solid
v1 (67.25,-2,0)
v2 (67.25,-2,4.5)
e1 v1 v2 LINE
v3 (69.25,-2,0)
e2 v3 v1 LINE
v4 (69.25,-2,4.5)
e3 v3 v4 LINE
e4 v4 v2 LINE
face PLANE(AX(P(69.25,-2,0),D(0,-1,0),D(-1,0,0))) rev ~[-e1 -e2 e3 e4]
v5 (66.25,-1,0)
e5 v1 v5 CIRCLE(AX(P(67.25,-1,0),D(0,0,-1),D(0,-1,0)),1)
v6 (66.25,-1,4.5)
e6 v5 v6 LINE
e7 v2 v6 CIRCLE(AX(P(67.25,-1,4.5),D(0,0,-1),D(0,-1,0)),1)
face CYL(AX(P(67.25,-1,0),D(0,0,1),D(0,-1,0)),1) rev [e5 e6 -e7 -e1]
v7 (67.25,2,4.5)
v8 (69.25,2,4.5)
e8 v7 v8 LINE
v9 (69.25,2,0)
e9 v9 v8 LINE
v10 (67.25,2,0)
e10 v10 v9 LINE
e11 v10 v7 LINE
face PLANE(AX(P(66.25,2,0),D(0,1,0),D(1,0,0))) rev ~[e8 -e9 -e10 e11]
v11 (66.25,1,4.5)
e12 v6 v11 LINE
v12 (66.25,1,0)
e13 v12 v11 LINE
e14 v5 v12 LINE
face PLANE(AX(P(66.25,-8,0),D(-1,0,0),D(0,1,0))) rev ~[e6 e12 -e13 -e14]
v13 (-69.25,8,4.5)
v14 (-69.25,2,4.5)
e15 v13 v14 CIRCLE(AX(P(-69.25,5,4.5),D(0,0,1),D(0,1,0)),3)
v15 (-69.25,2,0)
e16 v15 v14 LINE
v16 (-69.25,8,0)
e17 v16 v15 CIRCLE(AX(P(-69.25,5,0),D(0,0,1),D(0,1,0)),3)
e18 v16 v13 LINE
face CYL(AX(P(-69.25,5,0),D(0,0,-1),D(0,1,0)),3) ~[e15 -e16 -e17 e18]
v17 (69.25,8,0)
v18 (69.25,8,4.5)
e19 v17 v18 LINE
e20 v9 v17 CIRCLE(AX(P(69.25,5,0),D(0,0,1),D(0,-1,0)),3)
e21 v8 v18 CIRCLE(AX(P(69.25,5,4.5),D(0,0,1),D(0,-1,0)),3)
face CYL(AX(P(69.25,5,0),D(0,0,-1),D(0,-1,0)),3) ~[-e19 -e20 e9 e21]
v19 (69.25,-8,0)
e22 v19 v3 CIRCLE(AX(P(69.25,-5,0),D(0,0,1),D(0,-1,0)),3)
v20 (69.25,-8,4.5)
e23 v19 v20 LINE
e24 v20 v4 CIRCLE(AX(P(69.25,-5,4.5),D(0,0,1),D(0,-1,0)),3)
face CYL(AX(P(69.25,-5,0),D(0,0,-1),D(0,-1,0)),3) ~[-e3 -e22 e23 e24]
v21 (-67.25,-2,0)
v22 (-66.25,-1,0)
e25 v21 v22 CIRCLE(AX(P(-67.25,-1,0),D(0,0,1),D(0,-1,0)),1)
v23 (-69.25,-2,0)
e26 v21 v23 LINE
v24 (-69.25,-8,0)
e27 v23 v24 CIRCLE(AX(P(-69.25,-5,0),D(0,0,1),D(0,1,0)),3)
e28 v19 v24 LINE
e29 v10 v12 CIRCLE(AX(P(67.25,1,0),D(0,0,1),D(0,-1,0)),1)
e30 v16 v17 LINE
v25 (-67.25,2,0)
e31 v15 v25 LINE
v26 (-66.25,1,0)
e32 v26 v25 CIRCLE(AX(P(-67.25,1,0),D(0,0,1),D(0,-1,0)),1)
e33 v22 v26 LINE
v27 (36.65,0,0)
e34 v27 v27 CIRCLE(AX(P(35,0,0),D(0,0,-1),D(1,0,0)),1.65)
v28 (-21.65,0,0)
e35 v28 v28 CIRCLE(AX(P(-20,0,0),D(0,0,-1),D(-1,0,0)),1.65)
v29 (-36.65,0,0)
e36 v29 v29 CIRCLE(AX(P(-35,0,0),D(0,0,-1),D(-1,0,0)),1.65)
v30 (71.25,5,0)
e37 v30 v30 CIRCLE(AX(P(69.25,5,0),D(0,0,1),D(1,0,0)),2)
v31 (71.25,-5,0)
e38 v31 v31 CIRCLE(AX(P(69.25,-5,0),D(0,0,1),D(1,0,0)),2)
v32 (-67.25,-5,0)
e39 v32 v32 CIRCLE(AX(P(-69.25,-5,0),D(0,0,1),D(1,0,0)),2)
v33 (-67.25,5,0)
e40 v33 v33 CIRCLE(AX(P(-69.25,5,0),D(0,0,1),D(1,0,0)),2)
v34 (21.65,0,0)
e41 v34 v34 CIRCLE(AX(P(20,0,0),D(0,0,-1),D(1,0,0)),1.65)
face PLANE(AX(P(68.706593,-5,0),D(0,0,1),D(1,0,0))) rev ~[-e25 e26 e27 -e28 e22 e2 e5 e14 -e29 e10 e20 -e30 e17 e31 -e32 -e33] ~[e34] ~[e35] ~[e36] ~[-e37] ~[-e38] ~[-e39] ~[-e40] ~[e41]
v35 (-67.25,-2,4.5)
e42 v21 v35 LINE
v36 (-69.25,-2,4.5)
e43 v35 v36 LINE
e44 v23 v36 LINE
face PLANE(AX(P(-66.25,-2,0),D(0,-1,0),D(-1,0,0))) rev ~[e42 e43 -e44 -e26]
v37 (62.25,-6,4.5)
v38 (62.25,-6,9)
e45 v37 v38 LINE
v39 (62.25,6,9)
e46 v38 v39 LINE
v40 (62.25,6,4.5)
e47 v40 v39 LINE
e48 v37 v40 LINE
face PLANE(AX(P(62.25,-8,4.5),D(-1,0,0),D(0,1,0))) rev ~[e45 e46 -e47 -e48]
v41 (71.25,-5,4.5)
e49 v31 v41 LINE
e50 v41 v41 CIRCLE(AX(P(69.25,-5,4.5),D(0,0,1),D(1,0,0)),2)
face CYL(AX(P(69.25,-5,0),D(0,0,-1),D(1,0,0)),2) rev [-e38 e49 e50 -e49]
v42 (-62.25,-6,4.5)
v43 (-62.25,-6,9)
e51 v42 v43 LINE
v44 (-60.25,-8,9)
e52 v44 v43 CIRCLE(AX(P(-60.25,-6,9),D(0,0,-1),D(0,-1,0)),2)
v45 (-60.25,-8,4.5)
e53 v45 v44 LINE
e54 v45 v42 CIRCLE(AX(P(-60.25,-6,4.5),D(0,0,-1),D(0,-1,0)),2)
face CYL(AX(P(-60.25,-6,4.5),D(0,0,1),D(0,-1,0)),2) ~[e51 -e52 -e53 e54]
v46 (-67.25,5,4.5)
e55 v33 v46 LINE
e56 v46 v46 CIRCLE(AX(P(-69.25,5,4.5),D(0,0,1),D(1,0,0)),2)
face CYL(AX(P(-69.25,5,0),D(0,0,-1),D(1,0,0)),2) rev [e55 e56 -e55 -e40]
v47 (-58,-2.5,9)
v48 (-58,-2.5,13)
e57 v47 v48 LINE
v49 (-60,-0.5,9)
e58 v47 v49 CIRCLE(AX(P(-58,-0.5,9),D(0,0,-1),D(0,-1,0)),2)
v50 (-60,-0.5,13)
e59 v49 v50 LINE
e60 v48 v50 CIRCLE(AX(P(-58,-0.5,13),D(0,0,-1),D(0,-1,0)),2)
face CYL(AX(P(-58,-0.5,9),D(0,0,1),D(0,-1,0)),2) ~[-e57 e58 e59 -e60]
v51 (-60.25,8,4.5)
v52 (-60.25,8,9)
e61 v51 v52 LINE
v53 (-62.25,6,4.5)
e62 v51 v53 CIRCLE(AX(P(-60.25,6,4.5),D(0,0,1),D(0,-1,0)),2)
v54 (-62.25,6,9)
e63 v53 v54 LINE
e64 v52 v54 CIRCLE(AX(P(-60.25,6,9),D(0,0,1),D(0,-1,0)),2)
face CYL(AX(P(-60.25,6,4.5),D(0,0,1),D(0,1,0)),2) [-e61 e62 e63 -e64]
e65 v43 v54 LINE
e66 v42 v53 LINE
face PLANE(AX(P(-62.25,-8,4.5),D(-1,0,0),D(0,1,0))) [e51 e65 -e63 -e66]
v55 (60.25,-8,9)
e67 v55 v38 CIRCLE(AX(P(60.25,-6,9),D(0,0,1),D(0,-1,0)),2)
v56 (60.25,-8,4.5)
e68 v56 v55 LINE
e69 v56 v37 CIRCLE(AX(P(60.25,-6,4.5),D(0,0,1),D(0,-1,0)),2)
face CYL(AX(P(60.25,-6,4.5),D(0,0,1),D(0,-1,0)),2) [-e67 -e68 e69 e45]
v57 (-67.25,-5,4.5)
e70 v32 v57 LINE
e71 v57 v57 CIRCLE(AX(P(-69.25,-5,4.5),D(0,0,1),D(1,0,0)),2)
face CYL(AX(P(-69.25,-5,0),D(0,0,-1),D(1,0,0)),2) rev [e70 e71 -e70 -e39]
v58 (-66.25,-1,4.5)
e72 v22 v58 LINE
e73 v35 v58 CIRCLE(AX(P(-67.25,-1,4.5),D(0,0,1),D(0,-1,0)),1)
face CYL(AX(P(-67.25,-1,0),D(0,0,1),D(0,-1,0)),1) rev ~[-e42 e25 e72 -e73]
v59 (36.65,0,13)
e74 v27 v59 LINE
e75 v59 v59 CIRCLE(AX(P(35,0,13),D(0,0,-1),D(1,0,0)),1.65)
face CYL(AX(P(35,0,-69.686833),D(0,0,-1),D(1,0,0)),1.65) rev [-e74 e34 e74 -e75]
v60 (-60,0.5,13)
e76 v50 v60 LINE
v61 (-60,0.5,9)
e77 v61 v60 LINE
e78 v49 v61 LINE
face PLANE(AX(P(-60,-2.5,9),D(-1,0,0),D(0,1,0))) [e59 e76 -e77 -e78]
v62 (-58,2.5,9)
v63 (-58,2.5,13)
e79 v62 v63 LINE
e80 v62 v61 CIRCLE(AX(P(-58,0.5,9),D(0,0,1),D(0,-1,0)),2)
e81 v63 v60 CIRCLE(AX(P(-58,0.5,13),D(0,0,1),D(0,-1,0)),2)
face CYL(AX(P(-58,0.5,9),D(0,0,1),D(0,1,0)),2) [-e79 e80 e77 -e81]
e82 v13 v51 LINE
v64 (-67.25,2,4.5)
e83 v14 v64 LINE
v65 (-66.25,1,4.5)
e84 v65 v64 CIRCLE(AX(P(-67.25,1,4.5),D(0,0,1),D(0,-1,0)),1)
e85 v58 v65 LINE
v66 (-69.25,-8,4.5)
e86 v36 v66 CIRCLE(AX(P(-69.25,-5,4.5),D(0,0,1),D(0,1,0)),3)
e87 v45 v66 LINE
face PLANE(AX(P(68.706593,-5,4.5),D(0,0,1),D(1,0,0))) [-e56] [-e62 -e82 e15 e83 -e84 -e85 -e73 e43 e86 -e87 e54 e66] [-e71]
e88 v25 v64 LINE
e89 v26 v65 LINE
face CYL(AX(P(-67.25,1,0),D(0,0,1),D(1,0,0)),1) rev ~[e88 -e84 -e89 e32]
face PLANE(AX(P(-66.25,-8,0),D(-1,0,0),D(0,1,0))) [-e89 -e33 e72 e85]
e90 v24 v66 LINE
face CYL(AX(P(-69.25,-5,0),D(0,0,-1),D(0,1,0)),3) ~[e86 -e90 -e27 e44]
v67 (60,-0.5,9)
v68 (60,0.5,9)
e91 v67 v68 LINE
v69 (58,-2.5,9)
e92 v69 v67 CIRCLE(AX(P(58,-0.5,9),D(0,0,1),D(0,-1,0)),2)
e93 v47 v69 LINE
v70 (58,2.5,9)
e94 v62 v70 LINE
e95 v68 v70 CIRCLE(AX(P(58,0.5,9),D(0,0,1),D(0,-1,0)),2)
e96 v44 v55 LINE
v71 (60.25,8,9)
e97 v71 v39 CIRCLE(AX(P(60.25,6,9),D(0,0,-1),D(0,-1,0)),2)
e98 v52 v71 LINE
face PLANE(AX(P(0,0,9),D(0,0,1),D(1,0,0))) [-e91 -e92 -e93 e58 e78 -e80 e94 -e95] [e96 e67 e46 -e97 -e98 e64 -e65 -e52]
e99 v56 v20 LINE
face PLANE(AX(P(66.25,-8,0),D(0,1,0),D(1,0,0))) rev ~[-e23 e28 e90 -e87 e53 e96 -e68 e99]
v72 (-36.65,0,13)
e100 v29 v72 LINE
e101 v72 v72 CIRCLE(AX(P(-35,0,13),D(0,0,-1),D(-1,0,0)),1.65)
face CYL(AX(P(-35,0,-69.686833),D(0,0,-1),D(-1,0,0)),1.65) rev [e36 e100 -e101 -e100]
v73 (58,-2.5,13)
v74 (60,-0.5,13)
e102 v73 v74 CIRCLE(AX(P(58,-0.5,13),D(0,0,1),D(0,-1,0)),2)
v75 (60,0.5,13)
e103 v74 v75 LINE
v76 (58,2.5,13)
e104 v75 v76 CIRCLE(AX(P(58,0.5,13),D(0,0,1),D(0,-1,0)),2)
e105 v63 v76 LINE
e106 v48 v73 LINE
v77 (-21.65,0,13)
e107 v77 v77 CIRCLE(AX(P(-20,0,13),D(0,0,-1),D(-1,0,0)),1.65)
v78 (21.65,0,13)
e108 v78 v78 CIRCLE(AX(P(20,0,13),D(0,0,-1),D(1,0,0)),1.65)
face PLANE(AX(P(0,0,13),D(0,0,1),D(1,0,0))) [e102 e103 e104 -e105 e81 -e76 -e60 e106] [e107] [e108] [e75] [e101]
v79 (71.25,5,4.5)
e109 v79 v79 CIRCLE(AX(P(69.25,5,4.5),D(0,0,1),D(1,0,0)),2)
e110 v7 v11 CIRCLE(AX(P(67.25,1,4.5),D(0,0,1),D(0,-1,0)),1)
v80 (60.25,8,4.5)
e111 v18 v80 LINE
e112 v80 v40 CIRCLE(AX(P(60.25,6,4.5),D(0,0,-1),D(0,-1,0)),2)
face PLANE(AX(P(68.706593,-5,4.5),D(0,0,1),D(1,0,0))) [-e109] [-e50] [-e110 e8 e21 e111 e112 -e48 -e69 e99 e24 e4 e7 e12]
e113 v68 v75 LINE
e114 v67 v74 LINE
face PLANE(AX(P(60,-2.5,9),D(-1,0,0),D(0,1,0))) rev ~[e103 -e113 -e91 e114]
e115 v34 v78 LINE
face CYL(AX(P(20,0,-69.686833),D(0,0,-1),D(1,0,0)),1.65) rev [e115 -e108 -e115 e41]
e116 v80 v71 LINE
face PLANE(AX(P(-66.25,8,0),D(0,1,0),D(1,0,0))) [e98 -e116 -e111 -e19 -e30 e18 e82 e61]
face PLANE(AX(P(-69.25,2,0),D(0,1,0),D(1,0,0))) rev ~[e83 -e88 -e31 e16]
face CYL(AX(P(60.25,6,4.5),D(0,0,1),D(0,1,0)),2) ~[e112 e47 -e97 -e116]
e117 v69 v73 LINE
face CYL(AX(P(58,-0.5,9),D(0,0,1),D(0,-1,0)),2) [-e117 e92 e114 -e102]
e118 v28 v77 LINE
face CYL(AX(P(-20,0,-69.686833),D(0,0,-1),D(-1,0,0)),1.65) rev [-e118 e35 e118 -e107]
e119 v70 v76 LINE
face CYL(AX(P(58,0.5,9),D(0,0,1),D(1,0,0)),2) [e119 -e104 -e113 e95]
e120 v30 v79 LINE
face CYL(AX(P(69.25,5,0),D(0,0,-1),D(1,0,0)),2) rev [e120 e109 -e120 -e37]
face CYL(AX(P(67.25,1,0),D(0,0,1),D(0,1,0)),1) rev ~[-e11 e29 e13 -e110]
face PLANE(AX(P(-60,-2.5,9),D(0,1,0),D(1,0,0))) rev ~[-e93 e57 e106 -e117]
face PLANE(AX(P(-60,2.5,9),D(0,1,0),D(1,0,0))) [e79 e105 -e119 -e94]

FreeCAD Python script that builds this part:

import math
import FreeCAD as App
import Part
import Sketcher
from FreeCAD import Vector
Q = App.Units.Quantity


def edges_at(feature, points):
    """Names of the edges that pass closest to the given points."""
    edges = feature.Shape.Edges
    near = lambda p: min(range(len(edges)), key=lambda i: edges[i].distToShape(Part.Vertex(*p))[0])
    return sorted({f"Edge{near(p) + 1}" for p in points})

doc = App.newDocument("Part")
params = doc.addObject("Spreadsheet::Sheet", "Params")
for row, (alias, value) in enumerate([
    ("sketch1_diameter", "4 mm"),
    ("sketch1_radius", "3 mm"),
    ("sketch1_width", "3 mm"),
    ("sketch1_height", "4 mm"),
    ("sketch1_width2", "138.5 mm"),
    ("pad1_length", "4.5 mm"),
    ("fillet_radius", "1 mm"),
    ("sketch2_height", "16 mm"),
    ("sketch2_width", "124.5 mm"),
    ("pad2_length", "4.5 mm"),
    ("sketch3_width", "120 mm"),
    ("sketch3_height", "5 mm"),
    ("pad3_length", "4 mm"),
    ("sketch4_diameter", "3.3 mm"),
    ("fillet2_radius", "2 mm"),
], start=1):
    params.set(f"A{row}", alias)
    params.set(f"B{row}", "=" + value)
    params.setAlias(f"B{row}", alias)

body = doc.addObject("PartDesign::Body", "Body")

sketch1 = body.newObject("Sketcher::SketchObject", "Sketch")
sketch1.AttachmentSupport = (doc.getObject("XY_Plane"), [""])
sketch1.MapMode = "FlatFace"
sketch1.addGeometry([
    Part.LineSegment(Vector(-66.2, 2, 0), Vector(-66.2, -2, 0)),
    Part.LineSegment(Vector(-66.2, -2, 0), Vector(-69.2, -2, 0)),
    Part.ArcOfCircle(Part.Circle(Vector(-69.2, -5, 0), Vector(0, 0, 1), 3), math.radians(90), math.radians(270)),
    Part.LineSegment(Vector(-69.2, -8, 0), Vector(69.2, -8, 0)),
    Part.ArcOfCircle(Part.Circle(Vector(69.2, -5, 0), Vector(0, 0, 1), 3), math.radians(-90), math.radians(90)),
    Part.LineSegment(Vector(69.2, -2, 0), Vector(66.2, -2, 0)),
    Part.LineSegment(Vector(66.2, -2, 0), Vector(66.2, 2, 0)),
    Part.LineSegment(Vector(66.2, 2, 0), Vector(69.2, 2, 0)),
    Part.ArcOfCircle(Part.Circle(Vector(69.2, 5, 0), Vector(0, 0, 1), 3), math.radians(-90), math.radians(90)),
    Part.LineSegment(Vector(69.2, 8, 0), Vector(-69.2, 8, 0)),
    Part.ArcOfCircle(Part.Circle(Vector(-69.2, 5, 0), Vector(0, 0, 1), 3), math.radians(90), math.radians(270)),
    Part.LineSegment(Vector(-69.2, 2, 0), Vector(-66.2, 2, 0)),
    Part.Circle(Vector(-69.2, -5, 0), Vector(0, 0, 1), 2),
    Part.Circle(Vector(-69.2, 5, 0), Vector(0, 0, 1), 2),
    Part.Circle(Vector(69.2, -5, 0), Vector(0, 0, 1), 2),
    Part.Circle(Vector(69.2, 5, 0), Vector(0, 0, 1), 2),
], False)
sketch1.addConstraint([
    Sketcher.Constraint("Coincident", 0, 2, 1, 1),
    Sketcher.Constraint("Tangent", 1, 2, 2, 1),
    Sketcher.Constraint("Tangent", 2, 2, 3, 1),
    Sketcher.Constraint("Tangent", 3, 2, 4, 1),
    Sketcher.Constraint("Tangent", 4, 2, 5, 1),
    Sketcher.Constraint("Coincident", 5, 2, 6, 1),
    Sketcher.Constraint("Coincident", 6, 2, 7, 1),
    Sketcher.Constraint("Tangent", 7, 2, 8, 1),
    Sketcher.Constraint("Tangent", 8, 2, 9, 1),
    Sketcher.Constraint("Tangent", 9, 2, 10, 1),
    Sketcher.Constraint("Tangent", 10, 2, 11, 1),
    Sketcher.Constraint("Coincident", 11, 2, 0, 1),
    Sketcher.Constraint("Vertical", 0),
    Sketcher.Constraint("Horizontal", 1),
    Sketcher.Constraint("Horizontal", 3),
    Sketcher.Constraint("Horizontal", 5),
    Sketcher.Constraint("Vertical", 6),
    Sketcher.Constraint("Horizontal", 7),
    Sketcher.Constraint("Horizontal", 9),
    Sketcher.Constraint("Horizontal", 11),
    Sketcher.Constraint("Coincident", 12, 3, 2, 3),
    Sketcher.Constraint("Coincident", 13, 3, 10, 3),
    Sketcher.Constraint("Coincident", 14, 3, 4, 3),
    Sketcher.Constraint("Coincident", 15, 3, 8, 3),
    Sketcher.Constraint("Equal", 2, 4),
    Sketcher.Constraint("Equal", 4, 8),
    Sketcher.Constraint("Equal", 8, 10),
    Sketcher.Constraint("Equal", 12, 13),
    Sketcher.Constraint("Equal", 13, 14),
    Sketcher.Constraint("Equal", 14, 15),
    Sketcher.Constraint("Symmetric", 2, 3, 8, 3, -1, 1),
    Sketcher.Constraint("Vertical", 4, 3, 8, 3),
    Sketcher.Constraint("Vertical", 2, 3, 10, 3),
    Sketcher.Constraint("Equal", 1, 5),
    Sketcher.Constraint("Diameter", 12, Q("4 mm")),
    Sketcher.Constraint("Radius", 2, Q("3 mm")),
    Sketcher.Constraint("DistanceX", 1, 2, 1, 1, Q("3 mm")),
    Sketcher.Constraint("DistanceY", 0, 2, 0, 1, Q("4 mm")),
    Sketcher.Constraint("DistanceX", 3, 1, 3, 2, Q("138.5 mm")),
])
sketch1.setExpression("Constraints[34]", "Params.sketch1_diameter")
sketch1.setExpression("Constraints[35]", "Params.sketch1_radius")
sketch1.setExpression("Constraints[36]", "Params.sketch1_width")
sketch1.setExpression("Constraints[37]", "Params.sketch1_height")
sketch1.setExpression("Constraints[38]", "Params.sketch1_width2")
pad1 = body.newObject("PartDesign::Pad", "Pad")
pad1.Profile = sketch1
pad1.setExpression("Length", "Params.pad1_length")
doc.recompute()

fillet = body.newObject("PartDesign::Fillet", "Fillet")
fillet.Base = (pad1, edges_at(pad1, [
    (-66.25, -2, 2.25),
    (-66.25, 2, 2.25),
    (66.25, 2, 2.25),
    (66.25, -2, 2.25),
]))
fillet.setExpression("Radius", "Params.fillet_radius")

sketch2 = body.newObject("Sketcher::SketchObject", "Sketch001")
sketch2.AttachmentSupport = (doc.getObject("XY_Plane"), [""])
sketch2.MapMode = "FlatFace"
sketch2.AttachmentOffset = App.Placement(Vector(0, 0, 4.5), App.Rotation())
sketch2.addGeometry([
    Part.LineSegment(Vector(-62, 8, 0), Vector(-62, -8, 0)),
    Part.LineSegment(Vector(-62, -8, 0), Vector(62, -8, 0)),
    Part.LineSegment(Vector(62, -8, 0), Vector(62, 8, 0)),
    Part.LineSegment(Vector(62, 8, 0), Vector(-62, 8, 0)),
], False)
sketch2.addConstraint([
    Sketcher.Constraint("Coincident", 0, 2, 1, 1),
    Sketcher.Constraint("Coincident", 1, 2, 2, 1),
    Sketcher.Constraint("Coincident", 2, 2, 3, 1),
    Sketcher.Constraint("Coincident", 3, 2, 0, 1),
    Sketcher.Constraint("Vertical", 0),
    Sketcher.Constraint("Horizontal", 1),
    Sketcher.Constraint("Vertical", 2),
    Sketcher.Constraint("Horizontal", 3),
    Sketcher.Constraint("Symmetric", 0, 2, 2, 2, -1, 1),
    Sketcher.Constraint("DistanceY", 0, 2, 0, 1, Q("16 mm")),
    Sketcher.Constraint("DistanceX", 1, 1, 1, 2, Q("124.5 mm")),
])
sketch2.setExpression("Constraints[9]", "Params.sketch2_height")
sketch2.setExpression("Constraints[10]", "Params.sketch2_width")
pad2 = body.newObject("PartDesign::Pad", "Pad001")
pad2.Profile = sketch2
pad2.setExpression("Length", "Params.pad2_length")

sketch3 = body.newObject("Sketcher::SketchObject", "Sketch002")
sketch3.AttachmentSupport = (doc.getObject("XY_Plane"), [""])
sketch3.MapMode = "FlatFace"
sketch3.AttachmentOffset = App.Placement(Vector(0, 0, 9), App.Rotation())
sketch3.addGeometry([
    Part.LineSegment(Vector(-60, 2, 0), Vector(-60, -2, 0)),
    Part.LineSegment(Vector(-60, -2, 0), Vector(60, -2, 0)),
    Part.LineSegment(Vector(60, -2, 0), Vector(60, 2, 0)),
    Part.LineSegment(Vector(60, 2, 0), Vector(-60, 2, 0)),
], False)
sketch3.addConstraint([
    Sketcher.Constraint("Coincident", 0, 2, 1, 1),
    Sketcher.Constraint("Coincident", 1, 2, 2, 1),
    Sketcher.Constraint("Coincident", 2, 2, 3, 1),
    Sketcher.Constraint("Coincident", 3, 2, 0, 1),
    Sketcher.Constraint("Vertical", 0),
    Sketcher.Constraint("Horizontal", 1),
    Sketcher.Constraint("Vertical", 2),
    Sketcher.Constraint("Horizontal", 3),
    Sketcher.Constraint("Symmetric", 0, 2, 2, 2, -1, 1),
    Sketcher.Constraint("DistanceX", 1, 1, 1, 2, Q("120 mm")),
    Sketcher.Constraint("DistanceY", 0, 2, 0, 1, Q("5 mm")),
])
sketch3.setExpression("Constraints[9]", "Params.sketch3_width")
sketch3.setExpression("Constraints[10]", "Params.sketch3_height")
pad3 = body.newObject("PartDesign::Pad", "Pad002")
pad3.Profile = sketch3
pad3.setExpression("Length", "Params.pad3_length")

sketch4 = body.newObject("Sketcher::SketchObject", "Sketch003")
sketch4.AttachmentSupport = (doc.getObject("XY_Plane"), [""])
sketch4.MapMode = "FlatFace"
sketch4.AttachmentOffset = App.Placement(Vector(0, 0, 4.5), App.Rotation())
sketch4.addGeometry([
    Part.Circle(Vector(35, 0, 0), Vector(0, 0, 1), 1.6),
    Part.Circle(Vector(20, 0, 0), Vector(0, 0, 1), 1.6),
    Part.Circle(Vector(-20, 0, 0), Vector(0, 0, 1), 1.6),
    Part.Circle(Vector(-35, 0, 0), Vector(0, 0, 1), 1.6),
], False)
sketch4.addConstraint([
    Sketcher.Constraint("Equal", 0, 1),
    Sketcher.Constraint("Equal", 1, 2),
    Sketcher.Constraint("Equal", 2, 3),
    Sketcher.Constraint("Symmetric", 1, 3, 2, 3, -1, 1),
    Sketcher.Constraint("Symmetric", 0, 3, 3, 3, -1, 1),
    Sketcher.Constraint("PointOnObject", 0, 3, -1),
    Sketcher.Constraint("PointOnObject", 1, 3, -1),
    Sketcher.Constraint("Diameter", 0, Q("3.3 mm")),
    Sketcher.Constraint("DistanceX", -1, 1, 0, 3, Q("35 mm")),
    Sketcher.Constraint("DistanceX", -1, 1, 1, 3, Q("20 mm")),
])
sketch4.setExpression("Constraints[7]", "Params.sketch4_diameter")
pocket1 = body.newObject("PartDesign::Pocket", "Pocket")
pocket1.Profile = sketch4
pocket1.Type = "ThroughAll"
pocket1.Midplane = True
doc.recompute()

fillet2 = body.newObject("PartDesign::Fillet", "Fillet001")
fillet2.Base = (pocket1, edges_at(pocket1, [
    (-60, 2.5, 11),
    (-60, -2.5, 11),
    (60, -2.5, 11),
    (60, 2.5, 11),
    (-62.25, 8, 6.75),
    (-62.25, -8, 6.75),
    (62.25, -8, 6.75),
    (62.25, 8, 6.75),
]))
fillet2.setExpression("Radius", "Params.fillet2_radius")

doc.recompute()
